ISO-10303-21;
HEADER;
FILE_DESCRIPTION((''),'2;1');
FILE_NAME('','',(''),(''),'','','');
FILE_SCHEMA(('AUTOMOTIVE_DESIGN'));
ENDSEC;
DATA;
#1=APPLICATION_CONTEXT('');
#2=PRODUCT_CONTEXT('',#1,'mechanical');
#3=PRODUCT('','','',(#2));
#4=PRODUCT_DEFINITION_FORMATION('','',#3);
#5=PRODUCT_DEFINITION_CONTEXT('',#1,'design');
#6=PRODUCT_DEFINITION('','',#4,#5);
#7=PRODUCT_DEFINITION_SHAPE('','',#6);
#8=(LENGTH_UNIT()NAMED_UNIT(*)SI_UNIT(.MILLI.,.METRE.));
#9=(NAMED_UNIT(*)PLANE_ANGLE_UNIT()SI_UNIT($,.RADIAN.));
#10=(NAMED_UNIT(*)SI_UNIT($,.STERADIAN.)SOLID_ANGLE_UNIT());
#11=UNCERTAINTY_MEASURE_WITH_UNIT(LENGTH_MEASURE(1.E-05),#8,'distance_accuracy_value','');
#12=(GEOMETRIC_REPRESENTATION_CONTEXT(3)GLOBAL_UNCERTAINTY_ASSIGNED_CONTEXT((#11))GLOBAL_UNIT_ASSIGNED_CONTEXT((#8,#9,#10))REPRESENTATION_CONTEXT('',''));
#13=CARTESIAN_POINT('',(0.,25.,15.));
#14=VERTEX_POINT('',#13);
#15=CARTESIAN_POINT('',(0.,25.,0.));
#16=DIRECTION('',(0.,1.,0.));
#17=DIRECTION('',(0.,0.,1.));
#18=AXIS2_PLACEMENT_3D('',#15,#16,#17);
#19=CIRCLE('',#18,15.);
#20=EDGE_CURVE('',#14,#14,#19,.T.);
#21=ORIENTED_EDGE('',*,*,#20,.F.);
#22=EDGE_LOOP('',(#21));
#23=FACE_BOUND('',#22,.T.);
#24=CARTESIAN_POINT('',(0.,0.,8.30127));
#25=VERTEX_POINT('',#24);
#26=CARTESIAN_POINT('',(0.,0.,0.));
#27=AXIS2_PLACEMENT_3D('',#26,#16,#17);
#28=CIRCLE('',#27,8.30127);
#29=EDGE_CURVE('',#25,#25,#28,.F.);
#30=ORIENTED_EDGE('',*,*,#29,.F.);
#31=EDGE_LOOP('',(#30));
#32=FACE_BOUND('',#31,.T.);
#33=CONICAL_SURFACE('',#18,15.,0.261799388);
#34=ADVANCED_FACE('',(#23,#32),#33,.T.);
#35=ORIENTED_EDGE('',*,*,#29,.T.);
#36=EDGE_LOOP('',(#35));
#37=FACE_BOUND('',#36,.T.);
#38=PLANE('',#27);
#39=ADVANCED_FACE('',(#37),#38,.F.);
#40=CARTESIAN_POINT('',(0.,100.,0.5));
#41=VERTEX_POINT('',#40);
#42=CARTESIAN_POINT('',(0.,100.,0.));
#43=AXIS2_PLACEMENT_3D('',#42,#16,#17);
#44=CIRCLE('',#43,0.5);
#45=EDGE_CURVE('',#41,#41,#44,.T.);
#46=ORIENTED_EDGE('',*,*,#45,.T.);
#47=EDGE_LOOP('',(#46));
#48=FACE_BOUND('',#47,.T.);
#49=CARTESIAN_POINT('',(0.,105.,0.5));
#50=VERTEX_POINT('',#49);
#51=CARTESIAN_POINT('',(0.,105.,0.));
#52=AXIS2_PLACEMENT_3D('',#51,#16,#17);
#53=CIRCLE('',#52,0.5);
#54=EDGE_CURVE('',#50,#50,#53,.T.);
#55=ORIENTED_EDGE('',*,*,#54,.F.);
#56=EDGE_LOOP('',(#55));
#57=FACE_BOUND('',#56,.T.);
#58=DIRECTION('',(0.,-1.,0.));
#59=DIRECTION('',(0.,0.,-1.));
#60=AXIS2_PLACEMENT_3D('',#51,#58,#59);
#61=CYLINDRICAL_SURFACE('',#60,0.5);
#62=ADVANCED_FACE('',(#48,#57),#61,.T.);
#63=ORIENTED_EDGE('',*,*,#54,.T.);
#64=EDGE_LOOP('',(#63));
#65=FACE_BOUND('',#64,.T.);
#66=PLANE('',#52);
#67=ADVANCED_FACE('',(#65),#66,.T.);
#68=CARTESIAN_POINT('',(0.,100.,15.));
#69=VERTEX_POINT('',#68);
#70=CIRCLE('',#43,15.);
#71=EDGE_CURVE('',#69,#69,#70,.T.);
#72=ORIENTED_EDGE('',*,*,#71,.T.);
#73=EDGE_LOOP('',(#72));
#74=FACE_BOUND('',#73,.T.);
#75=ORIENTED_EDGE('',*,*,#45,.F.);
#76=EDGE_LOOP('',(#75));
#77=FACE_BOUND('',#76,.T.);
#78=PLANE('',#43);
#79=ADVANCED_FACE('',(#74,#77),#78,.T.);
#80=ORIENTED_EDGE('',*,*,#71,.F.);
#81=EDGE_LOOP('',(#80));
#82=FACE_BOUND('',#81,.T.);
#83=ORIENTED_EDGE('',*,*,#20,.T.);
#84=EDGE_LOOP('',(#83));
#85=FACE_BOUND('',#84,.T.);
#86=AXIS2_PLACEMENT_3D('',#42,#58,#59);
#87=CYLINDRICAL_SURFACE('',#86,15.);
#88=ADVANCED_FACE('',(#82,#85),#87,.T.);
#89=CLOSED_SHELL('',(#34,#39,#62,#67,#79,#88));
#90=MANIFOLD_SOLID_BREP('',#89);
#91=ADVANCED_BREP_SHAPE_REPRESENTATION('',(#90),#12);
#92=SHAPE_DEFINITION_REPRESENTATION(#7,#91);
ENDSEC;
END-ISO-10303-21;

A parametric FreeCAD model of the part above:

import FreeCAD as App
import Part
import Sketcher
from FreeCAD import Vector
Q = App.Units.Quantity


def edges_at(feature, points):
    """Names of the edges that pass closest to the given points."""
    edges = feature.Shape.Edges
    near = lambda p: min(range(len(edges)), key=lambda i: edges[i].distToShape(Part.Vertex(*p))[0])
    return sorted({f"Edge{near(p) + 1}" for p in points})

doc = App.newDocument("Part")
body = doc.addObject("PartDesign::Body", "Body")

sketch1 = doc.addObject("Sketcher::SketchObject", "Sketch")
body.addObject(sketch1)
sketch1.AttachmentSupport = (doc.XZ_Plane, [""])
sketch1.MapMode = "FlatFace"
sketch1.addGeometry(Part.Circle(Vector(0, 0, 0), Vector(0, 0, 1), 15), False)
sketch1.addConstraint(Sketcher.Constraint("Coincident", 0, 3, -1, 1))
sketch1.addConstraint(Sketcher.Constraint("Diameter", 0, Q("30 mm")))
pad1 = doc.addObject("PartDesign::Pad", "Pad")
body.addObject(pad1)
pad1.Profile = sketch1
pad1.Length = 100
pad1.Reversed = True
doc.recompute()

chamfer = doc.addObject("PartDesign::Chamfer", "Chamfer")
body.addObject(chamfer)
chamfer.Base = (pad1, edges_at(pad1, [(-15, 0, 0)]))
chamfer.ChamferType = "Two distances"
chamfer.Size = 25
chamfer.Size2 = 6.69873

sketch2 = doc.addObject("Sketcher::SketchObject", "Sketch001")
body.addObject(sketch2)
sketch2.AttachmentSupport = (doc.XZ_Plane, [""])
sketch2.MapMode = "FlatFace"
sketch2.AttachmentOffset = App.Placement(Vector(0, 0, -100), App.Rotation())
sketch2.addGeometry(Part.Circle(Vector(0, 0, 0), Vector(0, 0, 1), 0.5), False)
sketch2.addConstraint(Sketcher.Constraint("Coincident", 0, 3, -1, 1))
sketch2.addConstraint(Sketcher.Constraint("Diameter", 0, Q("1 mm")))
pad2 = doc.addObject("PartDesign::Pad", "Pad001")
body.addObject(pad2)
pad2.Profile = sketch2
pad2.Length = 5
pad2.Reversed = True

doc.recompute()
